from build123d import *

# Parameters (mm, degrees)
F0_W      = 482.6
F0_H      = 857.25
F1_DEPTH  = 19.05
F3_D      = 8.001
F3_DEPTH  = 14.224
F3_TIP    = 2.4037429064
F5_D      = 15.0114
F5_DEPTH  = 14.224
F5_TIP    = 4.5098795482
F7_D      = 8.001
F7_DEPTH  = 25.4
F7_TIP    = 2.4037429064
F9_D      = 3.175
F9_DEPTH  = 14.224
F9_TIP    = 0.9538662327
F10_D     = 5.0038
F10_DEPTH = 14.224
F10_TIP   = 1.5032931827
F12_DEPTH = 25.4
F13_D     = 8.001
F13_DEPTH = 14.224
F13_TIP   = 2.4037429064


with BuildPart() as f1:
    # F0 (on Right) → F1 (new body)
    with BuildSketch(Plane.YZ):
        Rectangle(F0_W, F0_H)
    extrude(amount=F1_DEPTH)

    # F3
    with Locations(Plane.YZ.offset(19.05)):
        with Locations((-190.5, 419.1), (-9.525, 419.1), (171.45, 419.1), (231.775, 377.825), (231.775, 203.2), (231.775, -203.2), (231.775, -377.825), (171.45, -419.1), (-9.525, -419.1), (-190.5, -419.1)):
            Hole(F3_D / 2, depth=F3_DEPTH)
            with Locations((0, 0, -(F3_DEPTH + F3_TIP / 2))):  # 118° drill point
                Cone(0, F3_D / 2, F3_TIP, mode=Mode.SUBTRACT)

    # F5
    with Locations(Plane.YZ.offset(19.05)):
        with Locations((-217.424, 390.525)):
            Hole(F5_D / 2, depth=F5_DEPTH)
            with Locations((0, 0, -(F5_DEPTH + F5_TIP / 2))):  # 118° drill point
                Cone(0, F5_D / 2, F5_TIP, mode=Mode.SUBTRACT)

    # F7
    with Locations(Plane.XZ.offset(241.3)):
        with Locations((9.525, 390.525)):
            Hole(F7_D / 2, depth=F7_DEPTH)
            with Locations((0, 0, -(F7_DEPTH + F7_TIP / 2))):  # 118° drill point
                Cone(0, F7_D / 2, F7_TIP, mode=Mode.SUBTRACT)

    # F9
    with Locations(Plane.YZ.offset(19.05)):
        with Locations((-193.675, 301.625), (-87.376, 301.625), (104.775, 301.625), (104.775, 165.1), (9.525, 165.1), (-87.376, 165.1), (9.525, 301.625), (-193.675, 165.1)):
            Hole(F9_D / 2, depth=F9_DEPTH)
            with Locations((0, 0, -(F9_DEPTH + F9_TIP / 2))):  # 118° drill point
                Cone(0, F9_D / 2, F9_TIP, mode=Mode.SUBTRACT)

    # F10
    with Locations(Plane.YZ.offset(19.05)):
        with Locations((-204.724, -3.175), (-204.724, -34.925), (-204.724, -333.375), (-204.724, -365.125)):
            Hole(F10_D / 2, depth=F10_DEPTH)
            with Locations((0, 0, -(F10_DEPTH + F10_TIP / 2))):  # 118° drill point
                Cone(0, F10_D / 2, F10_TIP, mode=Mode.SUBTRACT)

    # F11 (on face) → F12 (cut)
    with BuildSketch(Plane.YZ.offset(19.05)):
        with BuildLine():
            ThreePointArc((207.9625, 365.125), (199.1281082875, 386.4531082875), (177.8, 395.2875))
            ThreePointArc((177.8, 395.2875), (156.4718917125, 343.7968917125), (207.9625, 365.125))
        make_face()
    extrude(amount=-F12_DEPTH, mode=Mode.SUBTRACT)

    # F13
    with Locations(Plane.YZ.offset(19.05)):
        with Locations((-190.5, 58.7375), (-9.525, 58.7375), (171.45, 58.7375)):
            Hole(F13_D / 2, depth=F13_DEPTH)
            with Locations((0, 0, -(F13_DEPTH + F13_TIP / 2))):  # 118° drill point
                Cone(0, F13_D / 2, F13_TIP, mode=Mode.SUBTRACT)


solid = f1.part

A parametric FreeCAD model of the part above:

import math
import FreeCAD as App
import Part
import Sketcher
Q = App.Units.Quantity

doc = App.newDocument("Part")
params = doc.addObject("Spreadsheet::Sheet", "Params")
for row, (alias, value) in enumerate([
    ("sketch1_width", "19 in"),
    ("sketch1_height", "33.75 in"),
    ("pad1_length", "0.75 in"),
    ("sketch2_diameter", "0.315 in"),
    ("hole_diameter", "0.315 in"),
    ("hole_depth", "0.56 in"),
    ("sketch3_diameter", "0.591 in"),
    ("hole2_diameter", "0.591 in"),
    ("hole2_depth", "0.56 in"),
    ("sketch4_diameter", "0.315 in"),
    ("hole3_diameter", "0.315 in"),
    ("hole3_depth", "1 in"),
    ("sketch5_diameter", "0.125 in"),
    ("hole4_diameter", "0.125 in"),
    ("hole4_depth", "0.56 in"),
    ("sketch6_diameter", "0.197 in"),
    ("hole5_diameter", "0.197 in"),
    ("hole5_depth", "0.56 in"),
    ("sketch7_radius", "1.1875 in"),
    ("pocket1_length", "1 in"),
    ("sketch8_diameter", "0.315 in"),
    ("hole6_diameter", "0.315 in"),
    ("hole6_depth", "0.56 in"),
], start=1):
    params.set(f"A{row}", alias)
    params.set(f"B{row}", "=" + value)
    params.setAlias(f"B{row}", alias)

body = doc.addObject("PartDesign::Body", "Body")

sketch1 = body.newObject("Sketcher::SketchObject", "Sketch")
sketch1.AttachmentSupport = (doc.getObject("YZ_Plane"), [""])
sketch1.MapMode = "FlatFace"
sketch1.addGeometry([
    Part.LineSegment(App.Vector(-241.3, 428.625, 0), App.Vector(-241.3, -428.625, 0)),
    Part.LineSegment(App.Vector(-241.3, -428.625, 0), App.Vector(241.3, -428.625, 0)),
    Part.LineSegment(App.Vector(241.3, -428.625, 0), App.Vector(241.3, 428.625, 0)),
    Part.LineSegment(App.Vector(241.3, 428.625, 0), App.Vector(-241.3, 428.625, 0)),
], False)
sketch1.addConstraint([
    Sketcher.Constraint("Coincident", 0, 2, 1, 1),
    Sketcher.Constraint("Coincident", 1, 2, 2, 1),
    Sketcher.Constraint("Coincident", 2, 2, 3, 1),
    Sketcher.Constraint("Coincident", 3, 2, 0, 1),
    Sketcher.Constraint("Vertical", 0),
    Sketcher.Constraint("Horizontal", 1),
    Sketcher.Constraint("Vertical", 2),
    Sketcher.Constraint("Horizontal", 3),
    Sketcher.Constraint("Symmetric", 0, 2, 2, 2, -1, 1),
    Sketcher.Constraint("DistanceX", 1, 1, 1, 2, Q("19 in")),
    Sketcher.Constraint("DistanceY", 0, 2, 0, 1, Q("33.75 in")),
])
sketch1.setExpression("Constraints[9]", "Params.sketch1_width")
sketch1.setExpression("Constraints[10]", "Params.sketch1_height")
pad1 = body.newObject("PartDesign::Pad", "Pad")
pad1.Profile = sketch1
pad1.setExpression("Length", "Params.pad1_length")

sketch2 = body.newObject("Sketcher::SketchObject", "Sketch001")
sketch2.AttachmentSupport = (doc.getObject("YZ_Plane"), [""])
sketch2.MapMode = "FlatFace"
sketch2.AttachmentOffset = App.Placement(App.Vector(0, 0, 0.75 * 25.4), App.Rotation())
sketch2.addGeometry([
    Part.Circle(App.Vector(-190.5, 419.1, 0), App.Vector(0, 0, 1), 4.0005),
    Part.Circle(App.Vector(-9.525, 419.1, 0), App.Vector(0, 0, 1), 4.0005),
    Part.Circle(App.Vector(171.45, 419.1, 0), App.Vector(0, 0, 1), 4.0005),
    Part.Circle(App.Vector(231.775, 377.825, 0), App.Vector(0, 0, 1), 4.0005),
    Part.Circle(App.Vector(231.775, 203.2, 0), App.Vector(0, 0, 1), 4.0005),
    Part.Circle(App.Vector(231.775, -203.2, 0), App.Vector(0, 0, 1), 4.0005),
    Part.Circle(App.Vector(231.775, -377.825, 0), App.Vector(0, 0, 1), 4.0005),
    Part.Circle(App.Vector(171.45, -419.1, 0), App.Vector(0, 0, 1), 4.0005),
    Part.Circle(App.Vector(-9.525, -419.1, 0), App.Vector(0, 0, 1), 4.0005),
    Part.Circle(App.Vector(-190.5, -419.1, 0), App.Vector(0, 0, 1), 4.0005),
], False)
sketch2.addConstraint([
    Sketcher.Constraint("Equal", 0, 1),
    Sketcher.Constraint("Equal", 1, 2),
    Sketcher.Constraint("Equal", 2, 3),
    Sketcher.Constraint("Equal", 3, 4),
    Sketcher.Constraint("Equal", 4, 5),
    Sketcher.Constraint("Equal", 5, 6),
    Sketcher.Constraint("Equal", 6, 7),
    Sketcher.Constraint("Equal", 7, 8),
    Sketcher.Constraint("Equal", 8, 9),
    Sketcher.Constraint("Symmetric", 4, 3, 5, 3, -1),
    Sketcher.Constraint("Symmetric", 3, 3, 6, 3, -1),
    Sketcher.Constraint("Symmetric", 2, 3, 7, 3, -1),
    Sketcher.Constraint("Symmetric", 1, 3, 8, 3, -1),
    Sketcher.Constraint("Symmetric", 0, 3, 9, 3, -1),
    Sketcher.Constraint("Horizontal", 0, 3, 1, 3),
    Sketcher.Constraint("Horizontal", 1, 3, 2, 3),
    Sketcher.Constraint("Vertical", 3, 3, 4, 3),
    Sketcher.Constraint("Diameter", 0, Q("0.315 in")),
    Sketcher.Constraint("DistanceY", -1, 1, 4, 3, Q("8 in")),
    Sketcher.Constraint("DistanceY", 7, 3, 2, 3, Q("33 in")),
    Sketcher.Constraint("DistanceX", 0, 3, -1, 1, Q("7.5 in")),
    Sketcher.Constraint("DistanceX", 1, 3, 3, 3, Q("9.5 in")),
    Sketcher.Constraint("DistanceX", -1, 1, 2, 3, Q("6.75 in")),
    Sketcher.Constraint("DistanceY", 6, 3, 3, 3, Q("29.75 in")),
    Sketcher.Constraint("DistanceX", 1, 3, -1, 1, Q("0.375 in")),
])
sketch2.setExpression("Constraints[17]", "Params.sketch2_diameter")
doc.recompute()
hole = body.newObject("PartDesign::Hole", "Hole")
hole.Profile = sketch2
hole.ThreadType = "None"
hole.setExpression("Diameter", "Params.hole_diameter")
hole.DepthType = "Dimension"
hole.setExpression("Depth", "Params.hole_depth")
hole.DrillPoint = "Angled"
hole.DrillPointAngle = 118

sketch3 = body.newObject("Sketcher::SketchObject", "Sketch002")
sketch3.AttachmentSupport = (doc.getObject("YZ_Plane"), [""])
sketch3.MapMode = "FlatFace"
sketch3.AttachmentOffset = App.Placement(App.Vector(0, 0, 0.75 * 25.4), App.Rotation())
sketch3.addGeometry(Part.Circle(App.Vector(-217.424, 390.525, 0), App.Vector(0, 0, 1), 7.5057), False)
sketch3.addConstraint([
    Sketcher.Constraint("Diameter", 0, Q("0.591 in")),
    Sketcher.Constraint("DistanceX", 0, 3, -1, 1, Q("8.56 in")),
    Sketcher.Constraint("DistanceY", -1, 1, 0, 3, Q("15.375 in")),
])
sketch3.setExpression("Constraints[0]", "Params.sketch3_diameter")
doc.recompute()
hole2 = body.newObject("PartDesign::Hole", "Hole001")
hole2.Profile = sketch3
hole2.ThreadType = "None"
hole2.setExpression("Diameter", "Params.hole2_diameter")
hole2.DepthType = "Dimension"
hole2.setExpression("Depth", "Params.hole2_depth")
hole2.DrillPoint = "Angled"
hole2.DrillPointAngle = 118

sketch4 = body.newObject("Sketcher::SketchObject", "Sketch003")
sketch4.AttachmentSupport = (doc.getObject("XZ_Plane"), [""])
sketch4.MapMode = "FlatFace"
sketch4.AttachmentOffset = App.Placement(App.Vector(0, 0, 9.5 * 25.4), App.Rotation())
sketch4.addGeometry(Part.Circle(App.Vector(9.525, 390.525, 0), App.Vector(0, 0, 1), 4.0005), False)
sketch4.addConstraint([
    Sketcher.Constraint("Diameter", 0, Q("0.315 in")),
    Sketcher.Constraint("DistanceX", -1, 1, 0, 3, Q("0.375 in")),
    Sketcher.Constraint("DistanceY", -1, 1, 0, 3, Q("15.375 in")),
])
sketch4.setExpression("Constraints[0]", "Params.sketch4_diameter")
doc.recompute()
hole3 = body.newObject("PartDesign::Hole", "Hole002")
hole3.Profile = sketch4
hole3.ThreadType = "None"
hole3.setExpression("Diameter", "Params.hole3_diameter")
hole3.DepthType = "Dimension"
hole3.setExpression("Depth", "Params.hole3_depth")
hole3.DrillPoint = "Angled"
hole3.DrillPointAngle = 118

sketch5 = body.newObject("Sketcher::SketchObject", "Sketch004")
sketch5.AttachmentSupport = (doc.getObject("YZ_Plane"), [""])
sketch5.MapMode = "FlatFace"
sketch5.AttachmentOffset = App.Placement(App.Vector(0, 0, 0.75 * 25.4), App.Rotation())
sketch5.addGeometry([
    Part.Circle(App.Vector(-193.675, 301.625, 0), App.Vector(0, 0, 1), 1.5875),
    Part.Circle(App.Vector(-87.376, 301.625, 0), App.Vector(0, 0, 1), 1.5875),
    Part.Circle(App.Vector(104.775, 301.625, 0), App.Vector(0, 0, 1), 1.5875),
    Part.Circle(App.Vector(104.775, 165.1, 0), App.Vector(0, 0, 1), 1.5875),
    Part.Circle(App.Vector(9.525, 165.1, 0), App.Vector(0, 0, 1), 1.5875),
    Part.Circle(App.Vector(-87.376, 165.1, 0), App.Vector(0, 0, 1), 1.5875),
    Part.Circle(App.Vector(9.525, 301.625, 0), App.Vector(0, 0, 1), 1.5875),
    Part.Circle(App.Vector(-193.675, 165.1, 0), App.Vector(0, 0, 1), 1.5875),
], False)
sketch5.addConstraint([
    Sketcher.Constraint("Equal", 0, 1),
    Sketcher.Constraint("Equal", 1, 2),
    Sketcher.Constraint("Equal", 2, 3),
    Sketcher.Constraint("Equal", 3, 4),
    Sketcher.Constraint("Equal", 4, 5),
    Sketcher.Constraint("Equal", 5, 6),
    Sketcher.Constraint("Equal", 6, 7),
    Sketcher.Constraint("Horizontal", 0, 3, 1, 3),
    Sketcher.Constraint("Horizontal", 1, 3, 2, 3),
    Sketcher.Constraint("Horizontal", 3, 3, 4, 3),
    Sketcher.Constraint("Horizontal", 4, 3, 5, 3),
    Sketcher.Constraint("Horizontal", 2, 3, 6, 3),
    Sketcher.Constraint("Horizontal", 5, 3, 7, 3),
    Sketcher.Constraint("Vertical", 2, 3, 3, 3),
    Sketcher.Constraint("Vertical", 1, 3, 5, 3),
    Sketcher.Constraint("Vertical", 4, 3, 6, 3),
    Sketcher.Constraint("Vertical", 0, 3, 7, 3),
    Sketcher.Constraint("Diameter", 0, Q("0.125 in")),
    Sketcher.Constraint("DistanceX", 0, 3, 4, 3, Q("8 in")),
    Sketcher.Constraint("DistanceY", -1, 1, 3, 3, Q("6.5 in")),
    Sketcher.Constraint("DistanceX", 1, 3, -1, 1, Q("3.44 in")),
    Sketcher.Constraint("DistanceX", 0, 3, 2, 3, Q("11.75 in")),
    Sketcher.Constraint("DistanceX", 0, 3, -1, 1, Q("7.625 in")),
    Sketcher.Constraint("DistanceY", -1, 1, 0, 3, Q("11.875 in")),
])
sketch5.setExpression("Constraints[17]", "Params.sketch5_diameter")
doc.recompute()
hole4 = body.newObject("PartDesign::Hole", "Hole003")
hole4.Profile = sketch5
hole4.ThreadType = "None"
hole4.setExpression("Diameter", "Params.hole4_diameter")
hole4.DepthType = "Dimension"
hole4.setExpression("Depth", "Params.hole4_depth")
hole4.DrillPoint = "Angled"
hole4.DrillPointAngle = 118

sketch6 = body.newObject("Sketcher::SketchObject", "Sketch005")
sketch6.AttachmentSupport = (doc.getObject("YZ_Plane"), [""])
sketch6.MapMode = "FlatFace"
sketch6.AttachmentOffset = App.Placement(App.Vector(0, 0, 0.75 * 25.4), App.Rotation())
sketch6.addGeometry([
    Part.Circle(App.Vector(-204.724, -3.175, 0), App.Vector(0, 0, 1), 2.5019),
    Part.Circle(App.Vector(-204.724, -34.925, 0), App.Vector(0, 0, 1), 2.5019),
    Part.Circle(App.Vector(-204.724, -333.375, 0), App.Vector(0, 0, 1), 2.5019),
    Part.Circle(App.Vector(-204.724, -365.125, 0), App.Vector(0, 0, 1), 2.5019),
], False)
sketch6.addConstraint([
    Sketcher.Constraint("Equal", 0, 1),
    Sketcher.Constraint("Equal", 1, 2),
    Sketcher.Constraint("Equal", 2, 3),
    Sketcher.Constraint("Vertical", 0, 3, 1, 3),
    Sketcher.Constraint("Vertical", 1, 3, 2, 3),
    Sketcher.Constraint("Vertical", 2, 3, 3, 3),
    Sketcher.Constraint("Diameter", 0, Q("0.197 in")),
    Sketcher.Constraint("DistanceY", 2, 3, 0, 3, Q("13 in")),
    Sketcher.Constraint("DistanceY", 3, 3, 1, 3, Q("13 in")),
    Sketcher.Constraint("DistanceX", 0, 3, -1, 1, Q("8.06 in")),
    Sketcher.Constraint("DistanceY", 1, 3, 0, 3, Q("1.25 in")),
    Sketcher.Constraint("DistanceY", 0, 3, -1, 1, Q("0.125 in")),
])
sketch6.setExpression("Constraints[6]", "Params.sketch6_diameter")
doc.recompute()
hole5 = body.newObject("PartDesign::Hole", "Hole004")
hole5.Profile = sketch6
hole5.ThreadType = "None"
hole5.setExpression("Diameter", "Params.hole5_diameter")
hole5.DepthType = "Dimension"
hole5.setExpression("Depth", "Params.hole5_depth")
hole5.DrillPoint = "Angled"
hole5.DrillPointAngle = 118

sketch7 = body.newObject("Sketcher::SketchObject", "Sketch006")
sketch7.AttachmentSupport = (doc.getObject("YZ_Plane"), [""])
sketch7.MapMode = "FlatFace"
sketch7.AttachmentOffset = App.Placement(App.Vector(0, 0, 0.75 * 25.4), App.Rotation())
sketch7.addGeometry([
    Part.ArcOfCircle(Part.Circle(App.Vector(177.8, 365.125, 0), App.Vector(0, 0, 1), 30.1625), math.radians(0), math.radians(90)),
    Part.ArcOfCircle(Part.Circle(App.Vector(177.8, 365.125, 0), App.Vector(0, 0, 1), 30.1625), math.radians(90), math.radians(360)),
], False)
sketch7.addConstraint([
    Sketcher.Constraint("Tangent", 0, 1, 1, 2),
    Sketcher.Constraint("Coincident", 1, 1, 0, 2),
    Sketcher.Constraint("Horizontal", 1, 3, 0, 1),
    Sketcher.Constraint("Vertical", 0, 3, 1, 1),
    Sketcher.Constraint("DistanceX", -1, 1, 0, 3, Q("7 in")),
    Sketcher.Constraint("Radius", 0, Q("1.1875 in")),
    Sketcher.Constraint("DistanceY", -1, 1, 0, 3, Q("14.375 in")),
])
sketch7.setExpression("Constraints[5]", "Params.sketch7_radius")
pocket1 = body.newObject("PartDesign::Pocket", "Pocket")
pocket1.Profile = sketch7
pocket1.setExpression("Length", "Params.pocket1_length")

sketch8 = body.newObject("Sketcher::SketchObject", "Sketch007")
sketch8.AttachmentSupport = (doc.getObject("YZ_Plane"), [""])
sketch8.MapMode = "FlatFace"
sketch8.AttachmentOffset = App.Placement(App.Vector(0, 0, 0.75 * 25.4), App.Rotation())
sketch8.addGeometry([
    Part.Circle(App.Vector(-190.5, 58.7375, 0), App.Vector(0, 0, 1), 4.0005),
    Part.Circle(App.Vector(-9.525, 58.7375, 0), App.Vector(0, 0, 1), 4.0005),
    Part.Circle(App.Vector(171.45, 58.7375, 0), App.Vector(0, 0, 1), 4.0005),
], False)
sketch8.addConstraint([
    Sketcher.Constraint("Equal", 0, 1),
    Sketcher.Constraint("Equal", 1, 2),
    Sketcher.Constraint("Horizontal", 0, 3, 1, 3),
    Sketcher.Constraint("Horizontal", 1, 3, 2, 3),
    Sketcher.Constraint("Diameter", 0, Q("0.315 in")),
    Sketcher.Constraint("DistanceX", 0, 3, -1, 1, Q("7.5 in")),
    Sketcher.Constraint("DistanceX", -1, 1, 2, 3, Q("6.75 in")),
    Sketcher.Constraint("DistanceY", -1, 1, 0, 3, Q("2.3125 in")),
    Sketcher.Constraint("DistanceX", 1, 3, -1, 1, Q("0.375 in")),
])
sketch8.setExpression("Constraints[4]", "Params.sketch8_diameter")
doc.recompute()
hole6 = body.newObject("PartDesign::Hole", "Hole005")
hole6.Profile = sketch8
hole6.ThreadType = "None"
hole6.setExpression("Diameter", "Params.hole6_diameter")
hole6.DepthType = "Dimension"
hole6.setExpression("Depth", "Params.hole6_depth")
hole6.DrillPoint = "Angled"
hole6.DrillPointAngle = 118

doc.recompute()
